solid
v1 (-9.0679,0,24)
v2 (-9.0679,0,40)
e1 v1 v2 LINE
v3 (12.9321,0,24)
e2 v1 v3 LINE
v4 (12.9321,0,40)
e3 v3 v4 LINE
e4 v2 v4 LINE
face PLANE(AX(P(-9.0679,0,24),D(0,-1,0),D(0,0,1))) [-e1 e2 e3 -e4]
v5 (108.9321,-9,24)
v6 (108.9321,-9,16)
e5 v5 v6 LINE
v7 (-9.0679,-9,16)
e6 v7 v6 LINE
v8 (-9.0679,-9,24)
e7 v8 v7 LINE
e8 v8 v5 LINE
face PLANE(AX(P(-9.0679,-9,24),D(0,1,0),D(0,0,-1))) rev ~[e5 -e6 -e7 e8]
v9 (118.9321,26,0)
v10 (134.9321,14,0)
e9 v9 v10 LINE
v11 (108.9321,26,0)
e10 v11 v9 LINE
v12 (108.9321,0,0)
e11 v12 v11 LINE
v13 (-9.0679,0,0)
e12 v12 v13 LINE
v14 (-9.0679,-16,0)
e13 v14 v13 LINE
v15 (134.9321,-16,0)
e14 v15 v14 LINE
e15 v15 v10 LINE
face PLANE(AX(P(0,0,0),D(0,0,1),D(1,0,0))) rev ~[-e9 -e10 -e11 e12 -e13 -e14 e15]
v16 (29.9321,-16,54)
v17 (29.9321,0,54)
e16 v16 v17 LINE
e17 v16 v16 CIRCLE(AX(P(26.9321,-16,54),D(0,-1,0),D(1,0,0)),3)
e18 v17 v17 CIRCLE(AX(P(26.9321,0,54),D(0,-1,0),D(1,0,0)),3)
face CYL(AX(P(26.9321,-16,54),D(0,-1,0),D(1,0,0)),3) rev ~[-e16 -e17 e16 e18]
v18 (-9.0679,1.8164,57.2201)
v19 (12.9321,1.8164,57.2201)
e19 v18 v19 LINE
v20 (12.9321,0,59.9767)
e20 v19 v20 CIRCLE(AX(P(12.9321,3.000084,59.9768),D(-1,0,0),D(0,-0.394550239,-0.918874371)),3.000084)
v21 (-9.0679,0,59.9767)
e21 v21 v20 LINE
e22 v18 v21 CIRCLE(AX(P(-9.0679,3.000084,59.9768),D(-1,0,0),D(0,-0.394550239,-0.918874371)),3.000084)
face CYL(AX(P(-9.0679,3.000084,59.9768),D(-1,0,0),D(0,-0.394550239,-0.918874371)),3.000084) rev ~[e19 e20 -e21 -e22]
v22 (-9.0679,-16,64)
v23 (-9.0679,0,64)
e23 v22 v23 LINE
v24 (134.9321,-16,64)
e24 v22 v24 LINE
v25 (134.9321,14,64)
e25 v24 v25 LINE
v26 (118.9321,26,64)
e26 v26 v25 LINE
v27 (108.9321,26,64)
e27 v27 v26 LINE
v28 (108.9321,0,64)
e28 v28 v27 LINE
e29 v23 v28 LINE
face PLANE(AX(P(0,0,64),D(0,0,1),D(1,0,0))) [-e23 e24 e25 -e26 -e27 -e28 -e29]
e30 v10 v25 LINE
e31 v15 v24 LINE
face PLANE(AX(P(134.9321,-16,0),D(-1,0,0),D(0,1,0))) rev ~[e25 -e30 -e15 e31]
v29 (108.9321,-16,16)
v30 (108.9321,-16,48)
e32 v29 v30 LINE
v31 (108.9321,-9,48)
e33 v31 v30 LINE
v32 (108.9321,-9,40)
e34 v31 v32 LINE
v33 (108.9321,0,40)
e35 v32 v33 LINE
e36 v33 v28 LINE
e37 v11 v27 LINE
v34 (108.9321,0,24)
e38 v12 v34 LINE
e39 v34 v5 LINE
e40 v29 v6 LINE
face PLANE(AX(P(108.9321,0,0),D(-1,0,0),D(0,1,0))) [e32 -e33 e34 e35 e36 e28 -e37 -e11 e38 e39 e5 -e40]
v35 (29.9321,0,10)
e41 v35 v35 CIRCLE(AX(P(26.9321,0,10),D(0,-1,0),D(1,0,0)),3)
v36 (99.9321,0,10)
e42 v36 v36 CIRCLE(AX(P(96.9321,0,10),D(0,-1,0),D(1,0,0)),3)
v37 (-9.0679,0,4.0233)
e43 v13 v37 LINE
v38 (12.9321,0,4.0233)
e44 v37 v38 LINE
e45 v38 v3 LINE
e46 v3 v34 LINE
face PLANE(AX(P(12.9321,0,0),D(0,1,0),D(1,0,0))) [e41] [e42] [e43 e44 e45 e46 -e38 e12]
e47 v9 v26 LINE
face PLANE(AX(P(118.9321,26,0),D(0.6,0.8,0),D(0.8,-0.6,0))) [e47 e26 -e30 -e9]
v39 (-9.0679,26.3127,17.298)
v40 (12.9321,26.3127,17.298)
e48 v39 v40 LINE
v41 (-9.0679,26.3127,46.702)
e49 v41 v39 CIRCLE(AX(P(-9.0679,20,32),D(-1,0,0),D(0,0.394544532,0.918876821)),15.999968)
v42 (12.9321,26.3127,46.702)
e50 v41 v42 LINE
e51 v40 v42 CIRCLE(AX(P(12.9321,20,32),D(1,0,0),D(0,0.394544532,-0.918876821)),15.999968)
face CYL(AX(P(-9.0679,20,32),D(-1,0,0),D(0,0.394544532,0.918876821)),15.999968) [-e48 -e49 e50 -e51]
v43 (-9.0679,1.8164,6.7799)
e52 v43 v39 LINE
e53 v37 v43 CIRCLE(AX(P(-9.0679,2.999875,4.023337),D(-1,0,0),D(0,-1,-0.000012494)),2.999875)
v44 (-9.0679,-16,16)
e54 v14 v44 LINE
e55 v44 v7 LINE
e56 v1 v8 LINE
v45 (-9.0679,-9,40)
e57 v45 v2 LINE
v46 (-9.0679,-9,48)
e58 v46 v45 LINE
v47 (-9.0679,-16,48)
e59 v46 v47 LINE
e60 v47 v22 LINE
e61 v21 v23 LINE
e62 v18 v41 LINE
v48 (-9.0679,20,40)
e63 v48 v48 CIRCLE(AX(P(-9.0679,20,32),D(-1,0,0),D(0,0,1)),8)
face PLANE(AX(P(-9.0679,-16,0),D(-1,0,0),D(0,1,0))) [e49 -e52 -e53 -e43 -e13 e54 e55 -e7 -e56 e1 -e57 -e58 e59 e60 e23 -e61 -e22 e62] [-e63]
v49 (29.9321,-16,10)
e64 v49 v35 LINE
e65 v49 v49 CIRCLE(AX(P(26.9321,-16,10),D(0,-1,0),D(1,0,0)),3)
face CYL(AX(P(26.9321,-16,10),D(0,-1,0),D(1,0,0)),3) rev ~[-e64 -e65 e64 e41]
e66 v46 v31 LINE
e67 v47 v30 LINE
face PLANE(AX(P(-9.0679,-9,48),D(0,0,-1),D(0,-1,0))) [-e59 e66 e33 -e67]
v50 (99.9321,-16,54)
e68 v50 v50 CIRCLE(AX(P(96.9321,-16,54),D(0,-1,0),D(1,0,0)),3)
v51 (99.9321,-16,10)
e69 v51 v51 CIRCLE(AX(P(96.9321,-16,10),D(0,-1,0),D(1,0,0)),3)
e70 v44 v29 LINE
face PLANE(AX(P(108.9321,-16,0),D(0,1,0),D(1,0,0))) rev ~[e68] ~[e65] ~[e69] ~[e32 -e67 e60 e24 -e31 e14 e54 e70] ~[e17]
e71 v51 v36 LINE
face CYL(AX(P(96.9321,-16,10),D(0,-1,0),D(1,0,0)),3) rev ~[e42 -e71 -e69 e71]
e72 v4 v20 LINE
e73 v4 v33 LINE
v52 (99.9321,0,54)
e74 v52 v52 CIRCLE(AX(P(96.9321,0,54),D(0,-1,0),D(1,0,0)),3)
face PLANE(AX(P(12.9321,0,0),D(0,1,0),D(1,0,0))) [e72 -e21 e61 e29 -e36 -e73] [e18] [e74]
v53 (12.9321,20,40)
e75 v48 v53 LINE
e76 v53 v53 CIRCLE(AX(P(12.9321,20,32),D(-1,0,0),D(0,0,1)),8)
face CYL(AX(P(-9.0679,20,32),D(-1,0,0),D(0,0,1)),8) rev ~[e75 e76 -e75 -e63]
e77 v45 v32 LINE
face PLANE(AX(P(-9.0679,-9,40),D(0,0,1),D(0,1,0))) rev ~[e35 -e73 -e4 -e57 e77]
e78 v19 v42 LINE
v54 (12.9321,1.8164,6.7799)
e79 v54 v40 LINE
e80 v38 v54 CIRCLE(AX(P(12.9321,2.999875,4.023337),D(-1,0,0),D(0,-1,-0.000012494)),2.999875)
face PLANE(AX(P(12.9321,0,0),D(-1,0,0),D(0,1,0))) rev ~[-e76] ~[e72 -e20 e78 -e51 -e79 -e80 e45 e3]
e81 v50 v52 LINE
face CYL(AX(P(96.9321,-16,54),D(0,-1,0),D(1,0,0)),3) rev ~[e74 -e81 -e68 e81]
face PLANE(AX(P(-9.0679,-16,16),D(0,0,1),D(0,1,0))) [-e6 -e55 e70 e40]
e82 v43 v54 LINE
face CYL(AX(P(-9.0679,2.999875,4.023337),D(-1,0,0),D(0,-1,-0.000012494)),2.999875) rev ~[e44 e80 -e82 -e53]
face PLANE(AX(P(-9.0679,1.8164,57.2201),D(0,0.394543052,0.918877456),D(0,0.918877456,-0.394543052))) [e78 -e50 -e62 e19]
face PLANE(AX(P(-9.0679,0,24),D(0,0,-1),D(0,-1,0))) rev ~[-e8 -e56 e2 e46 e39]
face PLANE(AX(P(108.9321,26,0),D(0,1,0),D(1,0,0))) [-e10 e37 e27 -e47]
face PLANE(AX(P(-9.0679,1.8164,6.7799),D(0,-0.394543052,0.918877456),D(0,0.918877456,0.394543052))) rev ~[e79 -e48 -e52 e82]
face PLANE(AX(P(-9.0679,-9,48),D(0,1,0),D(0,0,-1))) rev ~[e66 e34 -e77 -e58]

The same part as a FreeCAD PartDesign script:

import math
import FreeCAD as App
import Part
import Sketcher

V = App.Vector
Q = App.Units.Quantity


def add_polygon(sketch, points):
    """Adds a closed chain of lines whose ends are joined by coincident constraints."""
    first, n = sketch.GeometryCount, len(points)
    for a, b in zip(points, points[1:] + points[:1]):
        sketch.addGeometry(Part.LineSegment(App.Vector(*a, 0), App.Vector(*b, 0)), False)
    for i in range(n):
        sketch.addConstraint(Sketcher.Constraint("Coincident", first + i, 2, first + (i + 1) % n, 1))

doc = App.newDocument("Part")
params = doc.addObject("Spreadsheet::Sheet", "Params")
for row, (alias, value) in enumerate([
    ("sketch1_width", "22 mm"),
    ("sketch1_width2", "10 mm"),
    ("sketch1_height", "36 mm"),
    ("sketch1_height2", "30 mm"),
    ("sketch1_height3", "26 mm"),
    ("pad1_length", "64 mm"),
    ("sketch2_diameter", "16 mm"),
    ("sketch2_radius", "3 mm"),
    ("sketch2_radius2", "16 mm"),
    ("sketch2_width", "36 mm"),
    ("sketch2_height", "32 mm"),
    ("pocket1_length", "22 mm"),
    ("sketch3_width", "9 mm"),
    ("sketch3_height", "8 mm"),
    ("sketch3_height2", "16 mm"),
    ("pocket2_length", "118 mm"),
    ("sketch4_diameter", "6 mm"),
], start=1):
    params.set(f"A{row}", alias)
    params.set(f"B{row}", "=" + value)
    params.setAlias(f"B{row}", alias)

body = doc.addObject("PartDesign::Body", "Body")

sketch1 = body.newObject("Sketcher::SketchObject", "Sketch")
sketch1.AttachmentSupport = (doc.getObject("XY_Plane"), [""])
sketch1.MapMode = "FlatFace"
add_polygon(sketch1, [(109, 0), (13, 0), (13, 36), (-9, 36), (-9, -16), (135, -16), (135, 14), (119, 26), (109, 26)])
sketch1.addConstraint([
    Sketcher.Constraint("Horizontal", 0),
    Sketcher.Constraint("Vertical", 1),
    Sketcher.Constraint("Horizontal", 2),
    Sketcher.Constraint("Vertical", 3),
    Sketcher.Constraint("Horizontal", 4),
    Sketcher.Constraint("Vertical", 5),
    Sketcher.Constraint("Horizontal", 7),
    Sketcher.Constraint("Vertical", 8),
    Sketcher.Constraint("PointOnObject", 0, 2, -1),
    Sketcher.Constraint("DistanceX", 2, 2, 2, 1, Q("22 mm")),
    Sketcher.Constraint("DistanceX", 7, 2, 7, 1, Q("10 mm")),
    Sketcher.Constraint("DistanceY", 1, 1, 1, 2, Q("36 mm")),
    Sketcher.Constraint("DistanceY", 5, 1, 5, 2, Q("30 mm")),
    Sketcher.Constraint("DistanceY", 8, 2, 8, 1, Q("26 mm")),
    Sketcher.Constraint("DistanceY", 3, 2, -1, 1, Q("16 mm")),
    Sketcher.Constraint("DistanceX", 6, 2, 5, 2, Q("16 mm")),
    Sketcher.Constraint("DistanceX", 0, 2, 0, 1, Q("96 mm")),
    Sketcher.Constraint("DistanceX", -1, 1, 0, 2, Q("12.932 mm")),
])
sketch1.setExpression("Constraints[18]", "Params.sketch1_width")
sketch1.setExpression("Constraints[19]", "Params.sketch1_width2")
sketch1.setExpression("Constraints[20]", "Params.sketch1_height")
sketch1.setExpression("Constraints[21]", "Params.sketch1_height2")
sketch1.setExpression("Constraints[22]", "Params.sketch1_height3")
pad1 = body.newObject("PartDesign::Pad", "Pad")
pad1.Profile = sketch1
pad1.setExpression("Length", "Params.pad1_length")

sketch2 = body.newObject("Sketcher::SketchObject", "Sketch001")
sketch2.AttachmentSupport = (doc.getObject("YZ_Plane"), [""])
sketch2.MapMode = "FlatFace"
sketch2.AttachmentOffset = App.Placement(V(0, 0, -9.0679), App.Rotation())
sketch2.addGeometry([
    Part.Circle(V(20, 32, 0), V(0, 0, 1), 8),
    Part.LineSegment(V(36, 0, 0), V(0, 0, 0)),
    Part.LineSegment(V(0, 0, 0), V(0, 4, 0)),
    Part.ArcOfCircle(Part.Circle(V(3, 4, 0), V(0, 0, 1), 3), math.radians(113), math.radians(180)),
    Part.LineSegment(V(1.8, 6.8, 0), V(26.3, 17.3, 0)),
    Part.ArcOfCircle(Part.Circle(V(20, 32, 0), V(0, 0, 1), 16), math.radians(-67), math.radians(0)),
    Part.LineSegment(V(36, 32, 0), V(36, 0, 0)),
    Part.LineSegment(V(0, 60, 0), V(0, 64, 0)),
    Part.LineSegment(V(0, 64, 0), V(36, 64, 0)),
    Part.LineSegment(V(36, 64, 0), V(36, 32, 0)),
    Part.ArcOfCircle(Part.Circle(V(20, 32, 0), V(0, 0, 1), 16), math.radians(0), math.radians(67)),
    Part.LineSegment(V(26.3, 46.7, 0), V(1.8, 57.2, 0)),
    Part.ArcOfCircle(Part.Circle(V(3, 60, 0), V(0, 0, 1), 3), math.radians(180), math.radians(247)),
], False)
sketch2.addConstraint([
    Sketcher.Constraint("Coincident", 1, 2, 2, 1),
    Sketcher.Constraint("Tangent", 2, 2, 3, 2),
    Sketcher.Constraint("Tangent", 3, 1, 4, 1),
    Sketcher.Constraint("Tangent", 4, 2, 5, 1),
    Sketcher.Constraint("Tangent", 5, 2, 6, 1),
    Sketcher.Constraint("Coincident", 6, 2, 1, 1),
    Sketcher.Constraint("Coincident", 7, 2, 8, 1),
    Sketcher.Constraint("Coincident", 8, 2, 9, 1),
    Sketcher.Constraint("Tangent", 9, 2, 10, 1),
    Sketcher.Constraint("Tangent", 10, 2, 11, 1),
    Sketcher.Constraint("Tangent", 11, 2, 12, 2),
    Sketcher.Constraint("Tangent", 12, 1, 7, 1),
    Sketcher.Constraint("Horizontal", 1),
    Sketcher.Constraint("Vertical", 2),
    Sketcher.Constraint("Vertical", 6),
    Sketcher.Constraint("Vertical", 7),
    Sketcher.Constraint("Horizontal", 8),
    Sketcher.Constraint("Vertical", 9),
    Sketcher.Constraint("Coincident", 1, 2, -1, 1),
    Sketcher.Constraint("Coincident", 5, 3, 0, 3),
    Sketcher.Constraint("Coincident", 10, 3, 0, 3),
    Sketcher.Constraint("Equal", 5, 10),
    Sketcher.Constraint("Equal", 3, 12),
    Sketcher.Constraint("PointOnObject", 7, 2, -2),
    Sketcher.Constraint("Vertical", 4, 2, 10, 2),
    Sketcher.Constraint("Equal", 2, 7),
    Sketcher.Constraint("Diameter", 0, Q("16 mm")),
    Sketcher.Constraint("Radius", 3, Q("3 mm")),
    Sketcher.Constraint("Radius", 5, Q("16 mm")),
    Sketcher.Constraint("DistanceX", 1, 2, 1, 1, Q("36 mm")),
    Sketcher.Constraint("DistanceY", 6, 2, 6, 1, Q("32 mm")),
    Sketcher.Constraint("DistanceY", -1, 1, 3, 1, Q("6.78 mm")),
])
sketch2.setExpression("Constraints[26]", "Params.sketch2_diameter")
sketch2.setExpression("Constraints[27]", "Params.sketch2_radius")
sketch2.setExpression("Constraints[28]", "Params.sketch2_radius2")
sketch2.setExpression("Constraints[29]", "Params.sketch2_width")
sketch2.setExpression("Constraints[30]", "Params.sketch2_height")
pocket1 = body.newObject("PartDesign::Pocket", "Pocket")
pocket1.Profile = sketch2
pocket1.setExpression("Length", "Params.pocket1_length")
pocket1.Reversed = True

sketch3 = body.newObject("Sketcher::SketchObject", "Sketch002")
sketch3.AttachmentSupport = (doc.getObject("YZ_Plane"), [""])
sketch3.MapMode = "FlatFace"
sketch3.AttachmentOffset = App.Placement(V(0, 0, -9.0679), App.Rotation())
add_polygon(sketch3, [(-9, 16), (-16, 16), (-16, 48), (-9, 48), (-9, 40), (0, 40), (0, 24), (-9, 24)])
sketch3.addConstraint([
    Sketcher.Constraint("Horizontal", 0),
    Sketcher.Constraint("Vertical", 1),
    Sketcher.Constraint("Horizontal", 2),
    Sketcher.Constraint("Vertical", 3),
    Sketcher.Constraint("Horizontal", 4),
    Sketcher.Constraint("Vertical", 5),
    Sketcher.Constraint("Horizontal", 6),
    Sketcher.Constraint("Vertical", 7),
    Sketcher.Constraint("PointOnObject", 4, 2, -2),
    Sketcher.Constraint("Vertical", 3, 2, 6, 2),
    Sketcher.Constraint("Equal", 3, 7),
    Sketcher.Constraint("DistanceX", 4, 1, 4, 2, Q("9 mm")),
    Sketcher.Constraint("DistanceY", 3, 2, 3, 1, Q("8 mm")),
    Sketcher.Constraint("DistanceY", 5, 2, 5, 1, Q("16 mm")),
    Sketcher.Constraint("DistanceX", 0, 2, -1, 1, Q("16 mm")),
    Sketcher.Constraint("DistanceY", -1, 1, 0, 2, Q("16 mm")),
])
sketch3.setExpression("Constraints[19]", "Params.sketch3_width")
sketch3.setExpression("Constraints[20]", "Params.sketch3_height")
sketch3.setExpression("Constraints[21]", "Params.sketch3_height2")
pocket2 = body.newObject("PartDesign::Pocket", "Pocket001")
pocket2.Profile = sketch3
pocket2.setExpression("Length", "Params.pocket2_length")
pocket2.Reversed = True

sketch4 = body.newObject("Sketcher::SketchObject", "Sketch003")
sketch4.AttachmentSupport = (doc.getObject("XZ_Plane"), [""])
sketch4.MapMode = "FlatFace"
sketch4.AttachmentOffset = App.Placement(V(0, 0, 16), App.Rotation())
sketch4.addGeometry([
    Part.Circle(V(26.9, 54, 0), V(0, 0, 1), 3),
    Part.Circle(V(96.9, 54, 0), V(0, 0, 1), 3),
    Part.Circle(V(26.9, 10, 0), V(0, 0, 1), 3),
    Part.Circle(V(96.9, 10, 0), V(0, 0, 1), 3),
], False)
sketch4.addConstraint([
    Sketcher.Constraint("Equal", 0, 1),
    Sketcher.Constraint("Equal", 1, 2),
    Sketcher.Constraint("Equal", 2, 3),
    Sketcher.Constraint("Horizontal", 0, 3, 1, 3),
    Sketcher.Constraint("Horizontal", 2, 3, 3, 3),
    Sketcher.Constraint("Vertical", 0, 3, 2, 3),
    Sketcher.Constraint("Vertical", 1, 3, 3, 3),
    Sketcher.Constraint("Diameter", 0, Q("6 mm")),
    Sketcher.Constraint("DistanceY", -1, 1, 2, 3, Q("10 mm")),
    Sketcher.Constraint("DistanceX", 0, 3, 1, 3, Q("70 mm")),
    Sketcher.Constraint("DistanceY", 2, 3, 0, 3, Q("44 mm")),
    Sketcher.Constraint("DistanceX", -1, 1, 0, 3, Q("26.932 mm")),
])
sketch4.setExpression("Constraints[7]", "Params.sketch4_diameter")
pocket3 = body.newObject("PartDesign::Pocket", "Pocket002")
pocket3.Profile = sketch4
pocket3.Type = "ThroughAll"

doc.recompute()
